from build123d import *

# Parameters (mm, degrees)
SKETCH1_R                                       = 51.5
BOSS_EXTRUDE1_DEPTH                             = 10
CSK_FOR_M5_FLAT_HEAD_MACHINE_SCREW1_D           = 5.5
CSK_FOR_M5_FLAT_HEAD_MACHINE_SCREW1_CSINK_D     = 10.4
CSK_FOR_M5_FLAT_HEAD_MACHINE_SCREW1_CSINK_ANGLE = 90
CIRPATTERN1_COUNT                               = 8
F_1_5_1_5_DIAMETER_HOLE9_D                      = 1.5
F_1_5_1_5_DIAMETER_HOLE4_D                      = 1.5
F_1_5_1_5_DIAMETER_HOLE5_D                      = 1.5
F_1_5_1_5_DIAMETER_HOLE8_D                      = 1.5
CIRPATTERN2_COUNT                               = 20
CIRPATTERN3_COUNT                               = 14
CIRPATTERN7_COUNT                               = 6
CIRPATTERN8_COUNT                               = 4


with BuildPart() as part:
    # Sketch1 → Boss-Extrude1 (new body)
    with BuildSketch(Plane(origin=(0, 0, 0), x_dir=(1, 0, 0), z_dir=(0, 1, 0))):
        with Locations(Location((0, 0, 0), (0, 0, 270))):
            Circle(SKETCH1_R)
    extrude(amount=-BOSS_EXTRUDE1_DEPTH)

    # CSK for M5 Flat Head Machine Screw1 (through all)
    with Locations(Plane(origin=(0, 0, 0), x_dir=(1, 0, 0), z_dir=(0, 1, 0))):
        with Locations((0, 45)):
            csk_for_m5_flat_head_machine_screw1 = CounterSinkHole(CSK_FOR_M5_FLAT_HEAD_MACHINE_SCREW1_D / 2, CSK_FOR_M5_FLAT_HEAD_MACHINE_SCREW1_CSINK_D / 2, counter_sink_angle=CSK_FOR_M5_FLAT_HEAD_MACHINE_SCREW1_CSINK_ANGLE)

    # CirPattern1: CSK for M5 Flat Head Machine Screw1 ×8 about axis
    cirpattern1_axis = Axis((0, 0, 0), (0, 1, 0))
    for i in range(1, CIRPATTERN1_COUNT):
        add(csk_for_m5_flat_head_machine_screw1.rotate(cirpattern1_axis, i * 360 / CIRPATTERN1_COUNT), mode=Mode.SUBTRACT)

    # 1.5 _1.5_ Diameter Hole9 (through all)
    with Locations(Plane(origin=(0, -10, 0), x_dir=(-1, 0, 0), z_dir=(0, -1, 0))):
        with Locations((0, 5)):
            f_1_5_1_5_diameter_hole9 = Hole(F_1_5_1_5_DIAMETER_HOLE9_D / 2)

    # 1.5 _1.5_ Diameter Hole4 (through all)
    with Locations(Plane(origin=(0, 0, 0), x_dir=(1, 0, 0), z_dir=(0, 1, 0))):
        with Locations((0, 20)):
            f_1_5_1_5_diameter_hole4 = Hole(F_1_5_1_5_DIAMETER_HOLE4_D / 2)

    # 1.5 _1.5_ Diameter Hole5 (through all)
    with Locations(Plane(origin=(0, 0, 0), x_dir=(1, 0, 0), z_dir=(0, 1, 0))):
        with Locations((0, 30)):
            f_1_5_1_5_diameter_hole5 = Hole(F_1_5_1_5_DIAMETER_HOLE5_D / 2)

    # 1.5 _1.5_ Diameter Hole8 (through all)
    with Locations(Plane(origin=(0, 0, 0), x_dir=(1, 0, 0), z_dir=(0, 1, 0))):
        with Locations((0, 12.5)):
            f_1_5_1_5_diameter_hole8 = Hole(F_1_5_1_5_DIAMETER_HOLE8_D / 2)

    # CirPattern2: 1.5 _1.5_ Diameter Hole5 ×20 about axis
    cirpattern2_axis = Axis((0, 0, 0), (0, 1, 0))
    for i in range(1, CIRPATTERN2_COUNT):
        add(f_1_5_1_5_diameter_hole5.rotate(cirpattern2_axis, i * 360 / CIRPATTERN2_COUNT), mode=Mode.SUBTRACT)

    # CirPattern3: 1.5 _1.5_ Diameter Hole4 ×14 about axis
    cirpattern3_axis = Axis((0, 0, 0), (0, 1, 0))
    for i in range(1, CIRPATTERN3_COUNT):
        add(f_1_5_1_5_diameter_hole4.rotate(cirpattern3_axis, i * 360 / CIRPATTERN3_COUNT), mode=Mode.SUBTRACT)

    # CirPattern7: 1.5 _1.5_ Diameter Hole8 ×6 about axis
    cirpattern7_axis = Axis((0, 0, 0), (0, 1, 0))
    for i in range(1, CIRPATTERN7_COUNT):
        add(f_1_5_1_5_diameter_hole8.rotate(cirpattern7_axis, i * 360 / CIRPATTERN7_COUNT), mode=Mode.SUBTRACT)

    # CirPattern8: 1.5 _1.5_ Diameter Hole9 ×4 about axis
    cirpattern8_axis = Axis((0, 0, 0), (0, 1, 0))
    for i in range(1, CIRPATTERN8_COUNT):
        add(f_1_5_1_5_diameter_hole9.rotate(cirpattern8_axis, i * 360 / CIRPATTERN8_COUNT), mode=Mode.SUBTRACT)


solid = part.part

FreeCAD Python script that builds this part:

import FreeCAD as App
import Part
import Sketcher

V = App.Vector

doc = App.newDocument("Part")
params = doc.addObject("Spreadsheet::Sheet", "Params")
for row, (alias, value) in enumerate([
    ("sketch1_diameter", "103 mm"),
    ("pad1_length", "10 mm"),
    ("sketch2_diameter", "5.5 mm"),
    ("hole_diameter", "5.5 mm"),
    ("hole_csink_diameter", "10.4 mm"),
    ("sketch3_diameter", "1.5 mm"),
    ("hole2_diameter", "1.5 mm"),
    ("sketch4_diameter", "1.5 mm"),
    ("hole3_diameter", "1.5 mm"),
    ("sketch5_diameter", "1.5 mm"),
    ("hole4_diameter", "1.5 mm"),
    ("sketch6_diameter", "1.5 mm"),
    ("hole5_diameter", "1.5 mm"),
], start=1):
    params.set(f"A{row}", alias)
    params.set(f"B{row}", "=" + value)
    params.setAlias(f"B{row}", alias)

body = doc.addObject("PartDesign::Body", "Body")

sketch1 = body.newObject("Sketcher::SketchObject", "Sketch")
sketch1.AttachmentSupport = (doc.getObject("XZ_Plane"), [""])
sketch1.MapMode = "FlatFace"
sketch1.addGeometry(Part.Circle(V(0, 0, 0), V(0, 0, 1), 52), False)
sketch1.addConstraint(Sketcher.Constraint("Coincident", 0, 3, -1, 1))
sketch1.addConstraint(Sketcher.Constraint("Diameter", 0, 103.0))
sketch1.setExpression("Constraints[1]", "Params.sketch1_diameter")
pad1 = body.newObject("PartDesign::Pad", "Pad")
pad1.Profile = sketch1
pad1.setExpression("Length", "Params.pad1_length")

sketch2 = body.newObject("Sketcher::SketchObject", "Sketch001")
sketch2.AttachmentSupport = (doc.getObject("XZ_Plane"), [""])
sketch2.MapMode = "FlatFace"
sketch2.addGeometry(Part.Circle(V(0, -45, 0), V(0, 0, 1), 2.8), False)
sketch2.addConstraint(Sketcher.Constraint("PointOnObject", 0, 3, -2))
sketch2.addConstraint(Sketcher.Constraint("Diameter", 0, 5.5))
sketch2.addConstraint(Sketcher.Constraint("DistanceY", 0, 3, -1, 1, 45.0))
sketch2.setExpression("Constraints[1]", "Params.sketch2_diameter")
doc.recompute()
hole = body.newObject("PartDesign::Hole", "Hole")
hole.Profile = sketch2
hole.ThreadType = "None"
hole.setExpression("Diameter", "Params.hole_diameter")
hole.DepthType = "ThroughAll"
hole.HoleCutType = "Countersink"
hole.setExpression("HoleCutDiameter", "Params.hole_csink_diameter")
hole.HoleCutCountersinkAngle = 90
hole.Reversed = True
doc.recompute()

polarpattern = body.newObject("PartDesign::PolarPattern", "PolarPattern")
polarpattern.Originals = [hole]
polarpattern.Axis = (doc.getObject("Y_Axis"), [""])
polarpattern.Angle = 360
polarpattern.Occurrences = 8
body.Tip = polarpattern

sketch3 = body.newObject("Sketcher::SketchObject", "Sketch002")
sketch3.AttachmentSupport = (doc.getObject("XZ_Plane"), [""])
sketch3.MapMode = "FlatFace"
sketch3.AttachmentOffset = App.Placement(V(0, 0, 10), App.Rotation())
sketch3.addGeometry(Part.Circle(V(0, -5, 0), V(0, 0, 1), 0.8), False)
sketch3.addConstraint(Sketcher.Constraint("PointOnObject", 0, 3, -2))
sketch3.addConstraint(Sketcher.Constraint("Diameter", 0, 1.5))
sketch3.addConstraint(Sketcher.Constraint("DistanceY", 0, 3, -1, 1, 5.0))
sketch3.setExpression("Constraints[1]", "Params.sketch3_diameter")
doc.recompute()
hole2 = body.newObject("PartDesign::Hole", "Hole001")
hole2.Profile = sketch3
hole2.ThreadType = "None"
hole2.setExpression("Diameter", "Params.hole2_diameter")
hole2.DepthType = "ThroughAll"

sketch4 = body.newObject("Sketcher::SketchObject", "Sketch003")
sketch4.AttachmentSupport = (doc.getObject("XZ_Plane"), [""])
sketch4.MapMode = "FlatFace"
sketch4.addGeometry(Part.Circle(V(0, -20, 0), V(0, 0, 1), 0.8), False)
sketch4.addConstraint(Sketcher.Constraint("PointOnObject", 0, 3, -2))
sketch4.addConstraint(Sketcher.Constraint("Diameter", 0, 1.5))
sketch4.addConstraint(Sketcher.Constraint("DistanceY", 0, 3, -1, 1, 20.0))
sketch4.setExpression("Constraints[1]", "Params.sketch4_diameter")
doc.recompute()
hole3 = body.newObject("PartDesign::Hole", "Hole002")
hole3.Profile = sketch4
hole3.ThreadType = "None"
hole3.setExpression("Diameter", "Params.hole3_diameter")
hole3.DepthType = "ThroughAll"
hole3.Reversed = True

sketch5 = body.newObject("Sketcher::SketchObject", "Sketch004")
sketch5.AttachmentSupport = (doc.getObject("XZ_Plane"), [""])
sketch5.MapMode = "FlatFace"
sketch5.addGeometry(Part.Circle(V(0, -30, 0), V(0, 0, 1), 0.8), False)
sketch5.addConstraint(Sketcher.Constraint("PointOnObject", 0, 3, -2))
sketch5.addConstraint(Sketcher.Constraint("Diameter", 0, 1.5))
sketch5.addConstraint(Sketcher.Constraint("DistanceY", 0, 3, -1, 1, 30.0))
sketch5.setExpression("Constraints[1]", "Params.sketch5_diameter")
doc.recompute()
hole4 = body.newObject("PartDesign::Hole", "Hole003")
hole4.Profile = sketch5
hole4.ThreadType = "None"
hole4.setExpression("Diameter", "Params.hole4_diameter")
hole4.DepthType = "ThroughAll"
hole4.Reversed = True

sketch6 = body.newObject("Sketcher::SketchObject", "Sketch005")
sketch6.AttachmentSupport = (doc.getObject("XZ_Plane"), [""])
sketch6.MapMode = "FlatFace"
sketch6.addGeometry(Part.Circle(V(0, -12.5, 0), V(0, 0, 1), 0.8), False)
sketch6.addConstraint(Sketcher.Constraint("PointOnObject", 0, 3, -2))
sketch6.addConstraint(Sketcher.Constraint("Diameter", 0, 1.5))
sketch6.addConstraint(Sketcher.Constraint("DistanceY", 0, 3, -1, 1, 12.5))
sketch6.setExpression("Constraints[1]", "Params.sketch6_diameter")
doc.recompute()
hole5 = body.newObject("PartDesign::Hole", "Hole004")
hole5.Profile = sketch6
hole5.ThreadType = "None"
hole5.setExpression("Diameter", "Params.hole5_diameter")
hole5.DepthType = "ThroughAll"
hole5.Reversed = True
doc.recompute()

polarpattern2 = body.newObject("PartDesign::PolarPattern", "PolarPattern001")
polarpattern2.Originals = [hole4]
polarpattern2.Axis = (doc.getObject("Y_Axis"), [""])
polarpattern2.Angle = 360
polarpattern2.Occurrences = 20
body.Tip = polarpattern2
doc.recompute()

polarpattern3 = body.newObject("PartDesign::PolarPattern", "PolarPattern002")
polarpattern3.Originals = [hole3]
polarpattern3.Axis = (doc.getObject("Y_Axis"), [""])
polarpattern3.Angle = 360
polarpattern3.Occurrences = 14
body.Tip = polarpattern3
doc.recompute()

polarpattern4 = body.newObject("PartDesign::PolarPattern", "PolarPattern003")
polarpattern4.Originals = [hole5]
polarpattern4.Axis = (doc.getObject("Y_Axis"), [""])
polarpattern4.Angle = 360
polarpattern4.Occurrences = 6
body.Tip = polarpattern4
doc.recompute()

polarpattern5 = body.newObject("PartDesign::PolarPattern", "PolarPattern004")
polarpattern5.Originals = [hole2]
polarpattern5.Axis = (doc.getObject("Y_Axis"), [""])
polarpattern5.Angle = 360
polarpattern5.Occurrences = 4
body.Tip = polarpattern5

doc.recompute()
